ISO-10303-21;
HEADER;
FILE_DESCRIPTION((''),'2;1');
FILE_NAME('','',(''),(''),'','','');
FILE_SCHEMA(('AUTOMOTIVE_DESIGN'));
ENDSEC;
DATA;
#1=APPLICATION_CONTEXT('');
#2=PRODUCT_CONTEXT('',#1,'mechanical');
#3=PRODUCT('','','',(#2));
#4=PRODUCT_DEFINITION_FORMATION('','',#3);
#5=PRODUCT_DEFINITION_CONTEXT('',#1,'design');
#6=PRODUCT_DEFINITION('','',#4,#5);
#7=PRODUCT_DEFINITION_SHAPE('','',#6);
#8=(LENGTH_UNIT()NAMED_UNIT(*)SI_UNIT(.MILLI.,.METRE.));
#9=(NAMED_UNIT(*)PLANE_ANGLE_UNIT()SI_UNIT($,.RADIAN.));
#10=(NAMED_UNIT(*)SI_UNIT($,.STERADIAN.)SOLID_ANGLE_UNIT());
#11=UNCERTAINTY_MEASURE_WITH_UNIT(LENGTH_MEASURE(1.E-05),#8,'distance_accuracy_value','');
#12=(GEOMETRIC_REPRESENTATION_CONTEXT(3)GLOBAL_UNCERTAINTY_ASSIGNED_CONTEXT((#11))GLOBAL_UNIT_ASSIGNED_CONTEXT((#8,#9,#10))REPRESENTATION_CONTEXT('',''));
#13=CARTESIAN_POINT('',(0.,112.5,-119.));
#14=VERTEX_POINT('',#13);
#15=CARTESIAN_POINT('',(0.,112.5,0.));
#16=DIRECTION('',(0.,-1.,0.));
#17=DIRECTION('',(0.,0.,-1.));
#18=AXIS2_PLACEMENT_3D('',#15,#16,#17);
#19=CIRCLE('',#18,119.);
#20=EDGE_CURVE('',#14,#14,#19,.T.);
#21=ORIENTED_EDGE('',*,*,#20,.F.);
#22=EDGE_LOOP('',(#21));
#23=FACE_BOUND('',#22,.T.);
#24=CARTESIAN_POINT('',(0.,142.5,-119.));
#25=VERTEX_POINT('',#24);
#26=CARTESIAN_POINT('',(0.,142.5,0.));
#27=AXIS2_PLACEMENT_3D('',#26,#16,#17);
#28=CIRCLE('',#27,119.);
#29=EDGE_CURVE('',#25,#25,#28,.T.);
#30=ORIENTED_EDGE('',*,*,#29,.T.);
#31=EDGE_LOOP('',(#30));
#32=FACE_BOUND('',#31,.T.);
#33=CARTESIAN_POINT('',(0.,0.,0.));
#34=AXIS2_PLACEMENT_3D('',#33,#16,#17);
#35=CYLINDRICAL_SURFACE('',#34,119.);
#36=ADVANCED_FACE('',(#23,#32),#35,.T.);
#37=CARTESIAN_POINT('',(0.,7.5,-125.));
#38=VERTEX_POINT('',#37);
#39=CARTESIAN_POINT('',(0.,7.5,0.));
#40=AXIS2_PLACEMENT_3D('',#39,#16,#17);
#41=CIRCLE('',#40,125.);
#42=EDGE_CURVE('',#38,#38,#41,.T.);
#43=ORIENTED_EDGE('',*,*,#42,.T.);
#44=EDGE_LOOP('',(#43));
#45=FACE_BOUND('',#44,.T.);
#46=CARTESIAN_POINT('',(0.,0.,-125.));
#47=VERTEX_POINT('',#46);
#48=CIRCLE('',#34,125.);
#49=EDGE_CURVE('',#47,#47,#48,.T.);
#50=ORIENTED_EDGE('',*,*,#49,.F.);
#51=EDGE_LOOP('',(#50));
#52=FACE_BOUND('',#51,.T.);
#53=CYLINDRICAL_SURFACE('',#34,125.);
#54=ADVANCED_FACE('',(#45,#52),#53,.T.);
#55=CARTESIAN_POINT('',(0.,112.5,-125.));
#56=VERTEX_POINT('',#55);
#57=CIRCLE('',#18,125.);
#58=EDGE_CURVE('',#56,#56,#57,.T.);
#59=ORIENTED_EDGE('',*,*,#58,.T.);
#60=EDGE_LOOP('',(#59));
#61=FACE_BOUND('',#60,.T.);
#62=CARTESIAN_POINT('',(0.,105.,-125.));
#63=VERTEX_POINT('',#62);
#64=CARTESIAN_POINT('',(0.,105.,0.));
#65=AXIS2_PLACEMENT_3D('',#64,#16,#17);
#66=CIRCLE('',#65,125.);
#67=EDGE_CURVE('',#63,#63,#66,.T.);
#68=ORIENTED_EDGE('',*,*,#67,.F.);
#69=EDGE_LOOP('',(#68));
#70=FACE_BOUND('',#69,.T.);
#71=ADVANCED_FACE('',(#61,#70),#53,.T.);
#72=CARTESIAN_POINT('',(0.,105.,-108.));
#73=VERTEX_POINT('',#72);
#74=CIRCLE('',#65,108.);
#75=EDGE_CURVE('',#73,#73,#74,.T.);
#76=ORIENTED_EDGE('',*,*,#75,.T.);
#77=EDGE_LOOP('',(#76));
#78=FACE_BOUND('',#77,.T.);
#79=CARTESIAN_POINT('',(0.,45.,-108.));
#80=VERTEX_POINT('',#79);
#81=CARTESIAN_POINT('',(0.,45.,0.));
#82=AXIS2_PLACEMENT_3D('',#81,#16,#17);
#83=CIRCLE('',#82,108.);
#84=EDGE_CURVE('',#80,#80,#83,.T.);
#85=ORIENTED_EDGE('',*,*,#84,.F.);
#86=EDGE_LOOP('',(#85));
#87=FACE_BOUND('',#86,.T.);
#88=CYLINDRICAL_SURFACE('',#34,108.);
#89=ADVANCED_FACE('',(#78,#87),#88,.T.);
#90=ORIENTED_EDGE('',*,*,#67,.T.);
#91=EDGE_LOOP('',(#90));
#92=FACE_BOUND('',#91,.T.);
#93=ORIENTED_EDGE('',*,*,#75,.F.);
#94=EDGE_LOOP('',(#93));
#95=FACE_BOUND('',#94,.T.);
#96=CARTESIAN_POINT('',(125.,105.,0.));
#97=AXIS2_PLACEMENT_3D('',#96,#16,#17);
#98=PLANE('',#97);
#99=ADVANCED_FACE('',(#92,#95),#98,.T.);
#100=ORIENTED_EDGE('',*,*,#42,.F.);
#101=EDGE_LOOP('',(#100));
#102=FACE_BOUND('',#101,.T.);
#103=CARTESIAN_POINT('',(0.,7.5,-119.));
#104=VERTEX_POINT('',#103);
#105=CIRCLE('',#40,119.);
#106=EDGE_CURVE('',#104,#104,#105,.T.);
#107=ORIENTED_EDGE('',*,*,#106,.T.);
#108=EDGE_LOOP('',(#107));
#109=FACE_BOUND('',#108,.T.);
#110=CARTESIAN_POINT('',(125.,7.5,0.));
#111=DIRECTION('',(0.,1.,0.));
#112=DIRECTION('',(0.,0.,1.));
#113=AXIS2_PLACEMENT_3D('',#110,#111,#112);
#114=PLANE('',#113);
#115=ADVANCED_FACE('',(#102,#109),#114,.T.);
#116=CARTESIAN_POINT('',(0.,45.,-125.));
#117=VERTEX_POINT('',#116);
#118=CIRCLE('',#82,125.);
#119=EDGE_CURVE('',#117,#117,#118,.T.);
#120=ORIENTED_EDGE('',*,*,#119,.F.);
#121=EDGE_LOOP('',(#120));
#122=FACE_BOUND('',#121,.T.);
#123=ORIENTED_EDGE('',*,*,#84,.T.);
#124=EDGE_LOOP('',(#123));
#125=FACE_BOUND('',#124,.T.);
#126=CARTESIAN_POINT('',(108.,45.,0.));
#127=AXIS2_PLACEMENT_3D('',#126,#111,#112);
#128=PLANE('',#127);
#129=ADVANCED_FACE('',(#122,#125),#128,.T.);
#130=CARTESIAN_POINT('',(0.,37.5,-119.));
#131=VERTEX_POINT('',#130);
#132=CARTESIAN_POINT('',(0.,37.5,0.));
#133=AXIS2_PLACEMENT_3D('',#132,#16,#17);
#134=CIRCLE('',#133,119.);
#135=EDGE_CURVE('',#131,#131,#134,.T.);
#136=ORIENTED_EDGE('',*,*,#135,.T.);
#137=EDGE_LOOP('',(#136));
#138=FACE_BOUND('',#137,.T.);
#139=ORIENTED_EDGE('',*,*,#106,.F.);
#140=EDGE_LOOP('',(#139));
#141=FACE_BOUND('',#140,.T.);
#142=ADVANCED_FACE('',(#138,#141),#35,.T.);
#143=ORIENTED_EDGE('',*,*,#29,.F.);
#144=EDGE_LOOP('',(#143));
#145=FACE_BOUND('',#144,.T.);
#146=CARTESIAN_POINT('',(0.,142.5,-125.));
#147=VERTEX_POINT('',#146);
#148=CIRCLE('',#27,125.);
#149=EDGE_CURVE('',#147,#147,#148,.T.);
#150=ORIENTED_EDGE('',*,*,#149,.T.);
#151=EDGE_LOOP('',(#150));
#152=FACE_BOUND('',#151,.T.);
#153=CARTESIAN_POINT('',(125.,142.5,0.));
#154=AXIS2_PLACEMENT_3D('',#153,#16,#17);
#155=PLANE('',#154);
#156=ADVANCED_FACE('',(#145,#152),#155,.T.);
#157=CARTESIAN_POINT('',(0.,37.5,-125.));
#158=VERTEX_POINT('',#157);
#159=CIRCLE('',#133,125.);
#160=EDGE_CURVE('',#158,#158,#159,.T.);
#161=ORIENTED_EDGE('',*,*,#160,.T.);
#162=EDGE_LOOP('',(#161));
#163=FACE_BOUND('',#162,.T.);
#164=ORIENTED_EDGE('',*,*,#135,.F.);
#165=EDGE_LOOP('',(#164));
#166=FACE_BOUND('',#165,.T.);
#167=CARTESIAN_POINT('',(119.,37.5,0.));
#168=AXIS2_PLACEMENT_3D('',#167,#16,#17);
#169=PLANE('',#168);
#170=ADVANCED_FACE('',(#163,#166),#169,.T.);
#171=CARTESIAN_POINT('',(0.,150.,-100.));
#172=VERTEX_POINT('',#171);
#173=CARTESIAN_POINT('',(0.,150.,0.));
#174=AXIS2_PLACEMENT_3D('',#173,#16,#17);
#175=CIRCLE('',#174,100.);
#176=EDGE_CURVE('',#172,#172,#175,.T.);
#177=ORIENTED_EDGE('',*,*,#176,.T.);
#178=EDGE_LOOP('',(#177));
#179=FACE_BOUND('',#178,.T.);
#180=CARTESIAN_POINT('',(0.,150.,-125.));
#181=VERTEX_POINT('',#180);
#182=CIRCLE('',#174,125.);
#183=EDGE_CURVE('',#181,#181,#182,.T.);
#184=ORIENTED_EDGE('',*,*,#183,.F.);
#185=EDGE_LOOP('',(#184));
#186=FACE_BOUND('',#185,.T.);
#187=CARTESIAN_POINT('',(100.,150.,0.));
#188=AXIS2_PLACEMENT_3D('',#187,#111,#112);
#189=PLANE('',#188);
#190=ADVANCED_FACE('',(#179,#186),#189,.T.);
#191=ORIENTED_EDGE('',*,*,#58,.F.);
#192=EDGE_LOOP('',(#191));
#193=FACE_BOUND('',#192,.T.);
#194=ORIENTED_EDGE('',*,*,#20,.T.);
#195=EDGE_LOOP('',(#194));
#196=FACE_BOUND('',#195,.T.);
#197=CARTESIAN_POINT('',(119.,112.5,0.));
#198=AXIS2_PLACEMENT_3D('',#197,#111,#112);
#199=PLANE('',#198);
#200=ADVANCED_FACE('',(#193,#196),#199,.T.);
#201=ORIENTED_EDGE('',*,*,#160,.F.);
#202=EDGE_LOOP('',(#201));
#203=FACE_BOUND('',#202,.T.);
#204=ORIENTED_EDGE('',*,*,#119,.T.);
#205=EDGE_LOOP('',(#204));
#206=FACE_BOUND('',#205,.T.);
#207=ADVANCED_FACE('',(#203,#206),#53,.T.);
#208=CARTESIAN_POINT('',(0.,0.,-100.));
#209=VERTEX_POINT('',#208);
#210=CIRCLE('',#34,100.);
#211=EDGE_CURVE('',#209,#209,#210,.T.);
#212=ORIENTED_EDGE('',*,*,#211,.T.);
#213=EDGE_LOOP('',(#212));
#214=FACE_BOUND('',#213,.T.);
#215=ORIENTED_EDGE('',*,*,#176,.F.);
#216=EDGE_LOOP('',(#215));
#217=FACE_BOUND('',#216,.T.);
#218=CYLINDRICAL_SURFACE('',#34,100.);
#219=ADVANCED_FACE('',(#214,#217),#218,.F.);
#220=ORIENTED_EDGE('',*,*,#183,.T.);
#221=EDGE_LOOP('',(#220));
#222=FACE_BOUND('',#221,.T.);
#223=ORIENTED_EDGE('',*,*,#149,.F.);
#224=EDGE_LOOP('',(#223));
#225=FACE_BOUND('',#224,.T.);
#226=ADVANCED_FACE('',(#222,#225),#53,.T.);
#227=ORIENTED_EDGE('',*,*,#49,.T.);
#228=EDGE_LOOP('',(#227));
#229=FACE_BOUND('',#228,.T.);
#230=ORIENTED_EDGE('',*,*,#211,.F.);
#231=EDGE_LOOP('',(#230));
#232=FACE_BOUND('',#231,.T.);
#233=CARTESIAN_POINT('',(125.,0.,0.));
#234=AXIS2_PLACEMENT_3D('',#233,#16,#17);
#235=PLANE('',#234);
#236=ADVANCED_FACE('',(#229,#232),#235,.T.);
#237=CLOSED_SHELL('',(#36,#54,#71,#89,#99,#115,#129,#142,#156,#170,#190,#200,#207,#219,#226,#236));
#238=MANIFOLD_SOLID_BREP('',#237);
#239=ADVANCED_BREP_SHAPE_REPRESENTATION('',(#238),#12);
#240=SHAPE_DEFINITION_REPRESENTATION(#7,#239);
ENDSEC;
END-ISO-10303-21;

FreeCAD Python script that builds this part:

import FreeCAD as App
import Part
import Sketcher
from FreeCAD import Vector


def add_polygon(sketch, points):
    """Adds a closed chain of lines whose ends are joined by coincident constraints."""
    first, n = sketch.GeometryCount, len(points)
    for a, b in zip(points, points[1:] + points[:1]):
        sketch.addGeometry(Part.LineSegment(App.Vector(*a, 0), App.Vector(*b, 0)), False)
    for i in range(n):
        sketch.addConstraint(Sketcher.Constraint("Coincident", first + i, 2, first + (i + 1) % n, 1))

doc = App.newDocument("Part")
body = doc.addObject("PartDesign::Body", "Body")

# Sketch on XY plane
sketch1 = doc.addObject("Sketcher::SketchObject", "Sketch")
body.addObject(sketch1)
sketch1.AttachmentSupport = (doc.XY_Plane, [""])
sketch1.MapMode = "FlatFace"
add_polygon(sketch1, [(125, 150), (100, 150), (100, 0), (125, 0), (125, 7.5), (119, 7.5), (119, 37.5), (125, 37.5), (125, 45), (108, 45), (108, 105), (125, 105), (125, 112.5), (119, 112.5), (119, 142.5), (125, 142.5)])  # lines 0-15
sketch1.addConstraint([
    Sketcher.Constraint("Horizontal", 0),
    Sketcher.Constraint("Vertical", 1),
    Sketcher.Constraint("Horizontal", 2),
    Sketcher.Constraint("Vertical", 3),
    Sketcher.Constraint("Horizontal", 4),
    Sketcher.Constraint("Vertical", 5),
    Sketcher.Constraint("Horizontal", 6),
    Sketcher.Constraint("Vertical", 7),
    Sketcher.Constraint("Horizontal", 8),
    Sketcher.Constraint("Vertical", 9),
    Sketcher.Constraint("Horizontal", 10),
    Sketcher.Constraint("Vertical", 11),
    Sketcher.Constraint("Horizontal", 12),
    Sketcher.Constraint("Vertical", 13),
    Sketcher.Constraint("Horizontal", 14),
    Sketcher.Constraint("Vertical", 15),
    Sketcher.Constraint("PointOnObject", 1, 2, -1),
    Sketcher.Constraint("Vertical", 3, 2, 6, 2),
    Sketcher.Constraint("Vertical", 7, 2, 10, 2),
    Sketcher.Constraint("Vertical", 5, 2, 12, 2),
    Sketcher.Constraint("Vertical", 11, 2, 14, 2),
    Sketcher.Constraint("Equal", 3, 7),
    Sketcher.Constraint("Equal", 7, 11),
    Sketcher.Constraint("Equal", 5, 13),
    Sketcher.Constraint("Equal", 11, 15),
    Sketcher.Constraint("DistanceX", 0, 2, 0, 1, 25.0),
    Sketcher.Constraint("DistanceX", 4, 2, 4, 1, 6.0),
    Sketcher.Constraint("DistanceX", 8, 2, 8, 1, 17.0),
    Sketcher.Constraint("DistanceY", 1, 2, 1, 1, 150.0),
    Sketcher.Constraint("DistanceY", 5, 1, 5, 2, 30.0),
    Sketcher.Constraint("DistanceY", 9, 1, 9, 2, 60.0),
    Sketcher.Constraint("DistanceX", -1, 1, 0, 2, 100.0),
])
revolution = doc.addObject("PartDesign::Revolution", "Revolution")
body.addObject(revolution)
revolution.Profile = sketch1
revolution.ReferenceAxis = (sketch1, ["V_Axis"])
revolution.Angle = 360

doc.recompute()
